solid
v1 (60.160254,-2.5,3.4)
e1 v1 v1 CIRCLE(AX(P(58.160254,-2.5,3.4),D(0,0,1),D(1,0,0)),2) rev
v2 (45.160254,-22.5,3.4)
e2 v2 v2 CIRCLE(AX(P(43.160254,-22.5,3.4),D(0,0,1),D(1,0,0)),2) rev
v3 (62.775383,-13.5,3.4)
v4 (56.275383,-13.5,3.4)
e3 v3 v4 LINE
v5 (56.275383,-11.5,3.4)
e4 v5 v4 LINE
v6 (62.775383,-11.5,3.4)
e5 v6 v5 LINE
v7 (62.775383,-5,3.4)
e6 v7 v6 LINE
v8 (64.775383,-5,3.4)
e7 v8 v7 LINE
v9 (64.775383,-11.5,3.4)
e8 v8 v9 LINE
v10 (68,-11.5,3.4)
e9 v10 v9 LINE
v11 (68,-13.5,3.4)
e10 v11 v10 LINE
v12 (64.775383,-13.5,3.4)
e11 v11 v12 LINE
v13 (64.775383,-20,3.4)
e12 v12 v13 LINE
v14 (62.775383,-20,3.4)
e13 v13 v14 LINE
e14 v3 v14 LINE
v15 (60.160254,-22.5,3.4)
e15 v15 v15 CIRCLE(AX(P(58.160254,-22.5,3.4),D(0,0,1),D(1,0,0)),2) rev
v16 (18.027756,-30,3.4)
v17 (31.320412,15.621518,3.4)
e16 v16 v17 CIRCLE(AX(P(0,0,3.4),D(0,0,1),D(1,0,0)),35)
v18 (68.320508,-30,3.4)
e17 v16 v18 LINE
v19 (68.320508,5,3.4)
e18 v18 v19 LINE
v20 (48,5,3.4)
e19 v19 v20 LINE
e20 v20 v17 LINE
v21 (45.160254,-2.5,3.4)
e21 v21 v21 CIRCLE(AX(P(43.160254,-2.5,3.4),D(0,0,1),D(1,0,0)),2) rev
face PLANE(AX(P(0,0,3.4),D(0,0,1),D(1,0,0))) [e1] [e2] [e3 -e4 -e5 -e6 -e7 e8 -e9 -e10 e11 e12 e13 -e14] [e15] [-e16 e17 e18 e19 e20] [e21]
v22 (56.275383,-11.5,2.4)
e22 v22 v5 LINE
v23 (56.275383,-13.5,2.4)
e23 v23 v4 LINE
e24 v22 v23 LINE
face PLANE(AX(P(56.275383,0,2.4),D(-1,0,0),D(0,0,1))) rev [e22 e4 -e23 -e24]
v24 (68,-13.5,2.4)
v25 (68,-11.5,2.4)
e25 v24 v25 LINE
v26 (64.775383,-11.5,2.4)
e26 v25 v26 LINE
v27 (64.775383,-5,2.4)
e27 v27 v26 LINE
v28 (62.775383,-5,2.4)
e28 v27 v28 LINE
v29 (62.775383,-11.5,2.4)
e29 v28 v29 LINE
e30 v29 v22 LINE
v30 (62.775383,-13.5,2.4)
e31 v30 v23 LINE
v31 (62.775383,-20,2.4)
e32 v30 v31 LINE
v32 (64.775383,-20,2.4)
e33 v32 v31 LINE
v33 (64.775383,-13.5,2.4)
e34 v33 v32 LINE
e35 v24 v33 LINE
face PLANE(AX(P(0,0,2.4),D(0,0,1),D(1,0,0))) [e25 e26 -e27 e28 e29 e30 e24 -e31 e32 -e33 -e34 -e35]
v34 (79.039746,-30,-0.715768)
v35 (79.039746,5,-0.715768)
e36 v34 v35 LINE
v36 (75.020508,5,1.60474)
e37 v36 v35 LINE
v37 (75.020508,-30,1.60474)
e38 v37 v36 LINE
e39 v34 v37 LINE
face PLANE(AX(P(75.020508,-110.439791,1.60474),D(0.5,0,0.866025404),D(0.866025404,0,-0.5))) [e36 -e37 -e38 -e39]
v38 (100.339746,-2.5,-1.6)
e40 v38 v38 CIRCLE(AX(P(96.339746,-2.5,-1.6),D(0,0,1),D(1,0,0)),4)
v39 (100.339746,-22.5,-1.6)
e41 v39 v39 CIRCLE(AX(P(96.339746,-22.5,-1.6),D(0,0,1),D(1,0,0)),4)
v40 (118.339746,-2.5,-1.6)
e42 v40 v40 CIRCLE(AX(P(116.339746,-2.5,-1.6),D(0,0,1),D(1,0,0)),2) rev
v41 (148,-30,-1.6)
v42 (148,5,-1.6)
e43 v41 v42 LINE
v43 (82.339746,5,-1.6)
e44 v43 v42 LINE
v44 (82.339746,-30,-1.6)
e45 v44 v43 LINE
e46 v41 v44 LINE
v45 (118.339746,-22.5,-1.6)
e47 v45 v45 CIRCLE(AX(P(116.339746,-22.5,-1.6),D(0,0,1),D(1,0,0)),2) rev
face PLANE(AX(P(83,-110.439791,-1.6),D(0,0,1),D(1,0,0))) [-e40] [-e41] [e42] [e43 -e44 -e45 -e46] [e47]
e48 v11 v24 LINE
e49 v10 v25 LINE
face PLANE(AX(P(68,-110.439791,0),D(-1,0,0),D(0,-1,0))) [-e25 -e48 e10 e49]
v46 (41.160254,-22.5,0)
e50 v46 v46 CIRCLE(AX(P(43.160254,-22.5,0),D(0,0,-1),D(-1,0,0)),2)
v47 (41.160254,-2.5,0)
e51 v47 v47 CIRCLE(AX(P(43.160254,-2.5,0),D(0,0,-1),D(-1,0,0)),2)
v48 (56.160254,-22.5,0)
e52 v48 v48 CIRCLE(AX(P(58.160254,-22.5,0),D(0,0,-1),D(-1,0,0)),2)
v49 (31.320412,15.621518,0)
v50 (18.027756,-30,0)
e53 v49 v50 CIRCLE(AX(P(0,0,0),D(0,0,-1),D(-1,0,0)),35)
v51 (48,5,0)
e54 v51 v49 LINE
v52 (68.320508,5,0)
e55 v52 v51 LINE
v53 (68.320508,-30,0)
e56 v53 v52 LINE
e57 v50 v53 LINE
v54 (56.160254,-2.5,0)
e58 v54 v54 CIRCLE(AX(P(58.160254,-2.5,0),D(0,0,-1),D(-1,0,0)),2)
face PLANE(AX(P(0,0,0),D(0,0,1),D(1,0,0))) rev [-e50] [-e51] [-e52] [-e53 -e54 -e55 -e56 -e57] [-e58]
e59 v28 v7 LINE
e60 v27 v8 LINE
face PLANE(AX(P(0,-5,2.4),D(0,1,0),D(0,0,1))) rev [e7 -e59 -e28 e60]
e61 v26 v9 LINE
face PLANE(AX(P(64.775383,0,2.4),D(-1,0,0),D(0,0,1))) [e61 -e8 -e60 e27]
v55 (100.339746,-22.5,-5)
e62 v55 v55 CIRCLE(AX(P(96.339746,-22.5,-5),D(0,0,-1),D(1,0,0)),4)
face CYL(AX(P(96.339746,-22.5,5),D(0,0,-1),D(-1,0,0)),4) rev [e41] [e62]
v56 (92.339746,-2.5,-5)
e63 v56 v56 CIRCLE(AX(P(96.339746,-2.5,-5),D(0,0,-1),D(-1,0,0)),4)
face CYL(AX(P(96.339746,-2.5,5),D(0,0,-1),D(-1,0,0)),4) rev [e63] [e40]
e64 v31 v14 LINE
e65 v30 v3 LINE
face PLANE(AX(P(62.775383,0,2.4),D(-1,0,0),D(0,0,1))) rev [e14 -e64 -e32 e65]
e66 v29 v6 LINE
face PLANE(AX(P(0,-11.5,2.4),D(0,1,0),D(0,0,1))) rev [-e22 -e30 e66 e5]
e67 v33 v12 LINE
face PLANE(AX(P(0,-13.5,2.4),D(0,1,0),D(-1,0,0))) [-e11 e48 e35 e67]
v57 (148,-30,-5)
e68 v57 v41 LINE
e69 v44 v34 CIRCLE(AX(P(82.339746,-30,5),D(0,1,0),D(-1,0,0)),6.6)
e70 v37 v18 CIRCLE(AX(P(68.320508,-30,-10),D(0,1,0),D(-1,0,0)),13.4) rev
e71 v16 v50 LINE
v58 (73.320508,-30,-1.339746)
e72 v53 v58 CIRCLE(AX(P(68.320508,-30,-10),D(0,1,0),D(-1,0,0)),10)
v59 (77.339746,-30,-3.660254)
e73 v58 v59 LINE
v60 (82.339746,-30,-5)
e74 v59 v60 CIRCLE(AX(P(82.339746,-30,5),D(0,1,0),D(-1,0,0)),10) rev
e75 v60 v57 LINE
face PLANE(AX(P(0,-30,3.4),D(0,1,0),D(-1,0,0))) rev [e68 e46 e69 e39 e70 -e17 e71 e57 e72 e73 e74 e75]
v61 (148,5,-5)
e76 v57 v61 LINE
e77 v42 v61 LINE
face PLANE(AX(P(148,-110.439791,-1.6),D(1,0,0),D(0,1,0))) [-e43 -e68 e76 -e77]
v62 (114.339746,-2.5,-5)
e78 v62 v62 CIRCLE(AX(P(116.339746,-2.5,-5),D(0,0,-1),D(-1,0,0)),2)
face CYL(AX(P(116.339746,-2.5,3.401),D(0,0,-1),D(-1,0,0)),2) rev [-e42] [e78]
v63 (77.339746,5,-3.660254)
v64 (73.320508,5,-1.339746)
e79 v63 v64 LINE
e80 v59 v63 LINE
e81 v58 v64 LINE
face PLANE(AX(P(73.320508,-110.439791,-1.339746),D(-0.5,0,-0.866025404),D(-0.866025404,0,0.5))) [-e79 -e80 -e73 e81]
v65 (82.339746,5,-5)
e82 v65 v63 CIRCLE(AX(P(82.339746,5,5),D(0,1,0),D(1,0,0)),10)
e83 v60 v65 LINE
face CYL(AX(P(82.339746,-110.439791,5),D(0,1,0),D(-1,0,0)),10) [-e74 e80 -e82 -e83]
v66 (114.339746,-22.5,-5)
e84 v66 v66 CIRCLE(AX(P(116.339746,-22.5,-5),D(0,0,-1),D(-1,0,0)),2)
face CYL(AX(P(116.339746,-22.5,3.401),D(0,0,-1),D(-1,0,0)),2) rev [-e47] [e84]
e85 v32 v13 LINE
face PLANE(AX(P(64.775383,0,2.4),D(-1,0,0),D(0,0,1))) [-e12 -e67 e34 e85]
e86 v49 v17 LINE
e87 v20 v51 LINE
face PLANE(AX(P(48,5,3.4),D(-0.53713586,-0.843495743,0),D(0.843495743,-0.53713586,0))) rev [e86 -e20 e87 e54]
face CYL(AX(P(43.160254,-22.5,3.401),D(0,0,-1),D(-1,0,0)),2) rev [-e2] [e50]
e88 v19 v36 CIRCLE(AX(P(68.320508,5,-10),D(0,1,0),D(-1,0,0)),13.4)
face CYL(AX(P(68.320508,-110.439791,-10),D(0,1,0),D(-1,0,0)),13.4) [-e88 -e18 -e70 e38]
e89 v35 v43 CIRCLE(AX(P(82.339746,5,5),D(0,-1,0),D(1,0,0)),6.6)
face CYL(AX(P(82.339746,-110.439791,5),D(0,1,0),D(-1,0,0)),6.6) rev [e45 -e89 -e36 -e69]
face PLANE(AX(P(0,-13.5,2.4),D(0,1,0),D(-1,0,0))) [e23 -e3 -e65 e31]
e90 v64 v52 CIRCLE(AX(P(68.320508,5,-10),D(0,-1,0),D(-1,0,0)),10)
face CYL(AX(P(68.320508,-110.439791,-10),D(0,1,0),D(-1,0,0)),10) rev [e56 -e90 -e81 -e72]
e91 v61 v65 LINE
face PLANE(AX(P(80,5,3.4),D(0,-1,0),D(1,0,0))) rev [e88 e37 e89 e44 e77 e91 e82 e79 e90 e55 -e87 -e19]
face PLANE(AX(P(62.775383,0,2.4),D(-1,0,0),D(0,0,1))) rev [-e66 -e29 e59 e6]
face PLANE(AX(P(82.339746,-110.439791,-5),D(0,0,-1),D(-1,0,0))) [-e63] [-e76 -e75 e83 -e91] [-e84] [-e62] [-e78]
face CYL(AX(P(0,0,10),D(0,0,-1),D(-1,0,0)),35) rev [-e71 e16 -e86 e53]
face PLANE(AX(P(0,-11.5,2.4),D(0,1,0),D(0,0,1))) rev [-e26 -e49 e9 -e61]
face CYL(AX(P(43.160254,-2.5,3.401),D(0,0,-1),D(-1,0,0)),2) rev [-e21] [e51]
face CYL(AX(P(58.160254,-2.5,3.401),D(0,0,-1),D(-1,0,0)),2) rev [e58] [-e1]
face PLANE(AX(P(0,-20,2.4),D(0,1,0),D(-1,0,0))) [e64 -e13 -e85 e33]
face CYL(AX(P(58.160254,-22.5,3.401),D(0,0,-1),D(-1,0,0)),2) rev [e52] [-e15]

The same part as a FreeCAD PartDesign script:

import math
import FreeCAD as App
import Part
import Sketcher
from FreeCAD import Vector
Q = App.Units.Quantity


def add_polygon(sketch, points):
    """Adds a closed chain of lines whose ends are joined by coincident constraints."""
    first, n = sketch.GeometryCount, len(points)
    for a, b in zip(points, points[1:] + points[:1]):
        sketch.addGeometry(Part.LineSegment(App.Vector(*a, 0), App.Vector(*b, 0)), False)
    for i in range(n):
        sketch.addConstraint(Sketcher.Constraint("Coincident", first + i, 2, first + (i + 1) % n, 1))

doc = App.newDocument("Part")
body = doc.addObject("PartDesign::Body", "Body")

sketch1 = body.newObject("Sketcher::SketchObject", "Sketch")
sketch1.AttachmentSupport = (doc.getObject("XY_Plane"), [""])
sketch1.MapMode = "FlatFace"
sketch1.addGeometry(Part.LineSegment(Vector(0, -30, 0), Vector(80, -30, 0)), False)
sketch1.addGeometry(Part.LineSegment(Vector(80, -30, 0), Vector(80, 5, 0)), False)
sketch1.addGeometry(Part.LineSegment(Vector(80, 5, 0), Vector(48, 5, 0)), False)
sketch1.addGeometry(Part.LineSegment(Vector(48, 5, 0), Vector(16, 25, 0)), False)
sketch1.addGeometry(Part.ArcOfCircle(Part.Circle(Vector(0, 0, 0), Vector(0, 0, 1), 30), math.radians(58), math.radians(270)), False)
sketch1.addConstraint(Sketcher.Constraint("Coincident", 0, 2, 1, 1))
sketch1.addConstraint(Sketcher.Constraint("Coincident", 1, 2, 2, 1))
sketch1.addConstraint(Sketcher.Constraint("Coincident", 2, 2, 3, 1))
sketch1.addConstraint(Sketcher.Constraint("Tangent", 3, 2, 4, 1))
sketch1.addConstraint(Sketcher.Constraint("Tangent", 4, 2, 0, 1))
sketch1.addConstraint(Sketcher.Constraint("Horizontal", 0))
sketch1.addConstraint(Sketcher.Constraint("Vertical", 1))
sketch1.addConstraint(Sketcher.Constraint("Horizontal", 2))
sketch1.addConstraint(Sketcher.Constraint("Coincident", 4, 3, -1, 1))
sketch1.addConstraint(Sketcher.Constraint("Radius", 4, 30.0))
sketch1.addConstraint(Sketcher.Constraint("DistanceX", 0, 1, 0, 2, 80.0))
sketch1.addConstraint(Sketcher.Constraint("DistanceX", 2, 2, 2, 1, 32.0))
sketch1.addConstraint(Sketcher.Constraint("DistanceY", 1, 1, 1, 2, 35.0))
pad1 = body.newObject("PartDesign::Pad", "Pad")
pad1.Profile = sketch1
pad1.Length = 3.4

sketch2 = body.newObject("Sketcher::SketchObject", "Sketch001")
sketch2.AttachmentSupport = (doc.getObject("XY_Plane"), [""])
sketch2.MapMode = "FlatFace"
sketch2.AttachmentOffset = App.Placement(Vector(0, 0, 3.4), App.Rotation())
sketch2.addGeometry(Part.Circle(Vector(0, 0, 0), Vector(0, 0, 1), 5), False)
sketch2.addConstraint(Sketcher.Constraint("Coincident", 0, 3, -1, 1))
sketch2.addConstraint(Sketcher.Constraint("Diameter", 0, 10.0))
pocket1 = body.newObject("PartDesign::Pocket", "Pocket")
pocket1.Profile = sketch2
pocket1.Length = 6

sketch3 = body.newObject("Sketcher::SketchObject", "Sketch002")
sketch3.AttachmentSupport = (doc.getObject("XY_Plane"), [""])
sketch3.MapMode = "FlatFace"
sketch3.AttachmentOffset = App.Placement(Vector(0, 0, 3.4), App.Rotation())
sketch3.addGeometry(Part.ArcOfCircle(Part.Circle(Vector(0, 0, 0), Vector(0, 0, 1), 10), math.radians(90), math.radians(210)), False)
sketch3.addGeometry(Part.ArcOfCircle(Part.Circle(Vector(0, 14, 0), Vector(0, 0, 1), 4), math.radians(-90), math.radians(90)), False)
sketch3.addGeometry(Part.ArcOfCircle(Part.Circle(Vector(0, 0, 0), Vector(0, 0, 1), 18), math.radians(90), math.radians(210)), False)
sketch3.addGeometry(Part.ArcOfCircle(Part.Circle(Vector(-12.1, -7, 0), Vector(0, 0, 1), 4), math.radians(-150), math.radians(30)), False)
sketch3.addConstraint(Sketcher.Constraint("Tangent", 0, 1, 1, 1))
sketch3.addConstraint(Sketcher.Constraint("Tangent", 1, 2, 2, 1))
sketch3.addConstraint(Sketcher.Constraint("Tangent", 2, 2, 3, 1))
sketch3.addConstraint(Sketcher.Constraint("Tangent", 3, 2, 0, 2))
sketch3.addConstraint(Sketcher.Constraint("Coincident", 0, 3, -1, 1))
sketch3.addConstraint(Sketcher.Constraint("Coincident", 2, 3, -1, 1))
sketch3.addConstraint(Sketcher.Constraint("PointOnObject", 1, 3, -2))
sketch3.addConstraint(Sketcher.Constraint("Radius", 0, 10.0))
sketch3.addConstraint(Sketcher.Constraint("Radius", 1, 4.0))
sketch3.addConstraint(Sketcher.Constraint("DistanceY", 3, 3, -1, 1, 7.0))
pocket2 = body.newObject("PartDesign::Pocket", "Pocket001")
pocket2.Profile = sketch3
pocket2.Length = 10

sketch4 = body.newObject("Sketcher::SketchObject", "Sketch003")
sketch4.AttachmentSupport = (doc.getObject("XY_Plane"), [""])
sketch4.MapMode = "FlatFace"
sketch4.addGeometry(Part.Circle(Vector(0, 0, 0), Vector(0, 0, 1), 35), False)
sketch4.addConstraint(Sketcher.Constraint("Coincident", 0, 3, -1, 1))
sketch4.addConstraint(Sketcher.Constraint("Diameter", 0, 70.0))
pocket3 = body.newObject("PartDesign::Pocket", "Pocket002")
pocket3.Profile = sketch4
pocket3.Length = 10
pocket3.Reversed = True

sketch5 = body.newObject("Sketcher::SketchObject", "Sketch004")
sketch5.AttachmentSupport = (doc.getObject("XY_Plane"), [""])
sketch5.MapMode = "FlatFace"
sketch5.AttachmentOffset = App.Placement(Vector(0, 0, 3.4), App.Rotation())
add_polygon(sketch5, [(62.8, -13.5), (62.8, -20), (64.8, -20), (64.8, -13.5), (71.3, -13.5), (71.3, -11.5), (64.8, -11.5), (64.8, -5), (62.8, -5), (62.8, -11.5), (56.3, -11.5), (56.3, -13.5)])
sketch5.addConstraint(Sketcher.Constraint("Vertical", 0))
sketch5.addConstraint(Sketcher.Constraint("Horizontal", 1))
sketch5.addConstraint(Sketcher.Constraint("Vertical", 2))
sketch5.addConstraint(Sketcher.Constraint("Horizontal", 3))
sketch5.addConstraint(Sketcher.Constraint("Vertical", 4))
sketch5.addConstraint(Sketcher.Constraint("Horizontal", 5))
sketch5.addConstraint(Sketcher.Constraint("Vertical", 6))
sketch5.addConstraint(Sketcher.Constraint("Horizontal", 7))
sketch5.addConstraint(Sketcher.Constraint("Vertical", 8))
sketch5.addConstraint(Sketcher.Constraint("Horizontal", 9))
sketch5.addConstraint(Sketcher.Constraint("Vertical", 10))
sketch5.addConstraint(Sketcher.Constraint("Horizontal", 11))
sketch5.addConstraint(Sketcher.Constraint("Horizontal", 5, 2, 8, 2))
sketch5.addConstraint(Sketcher.Constraint("Horizontal", 3, 2, 10, 2))
sketch5.addConstraint(Sketcher.Constraint("Vertical", 2, 2, 5, 2))
sketch5.addConstraint(Sketcher.Constraint("Vertical", 0, 2, 7, 2))
sketch5.addConstraint(Sketcher.Constraint("Equal", 5, 9))
sketch5.addConstraint(Sketcher.Constraint("Equal", 11, 0))
sketch5.addConstraint(Sketcher.Constraint("Equal", 7, 4))
sketch5.addConstraint(Sketcher.Constraint("Equal", 2, 6))
sketch5.addConstraint(Sketcher.Constraint("DistanceX", 1, 1, 1, 2, 2.0))
sketch5.addConstraint(Sketcher.Constraint("DistanceX", 3, 1, 3, 2, 6.5))
sketch5.addConstraint(Sketcher.Constraint("DistanceY", 0, 2, -1, 1, 20.0))
sketch5.addConstraint(Sketcher.Constraint("DistanceX", -1, 1, 0, 2, 62.775383))
pocket4 = body.newObject("PartDesign::Pocket", "Pocket003")
pocket4.Profile = sketch5
pocket4.Length = 1

sketch6 = body.newObject("Sketcher::SketchObject", "Sketch005")
sketch6.AttachmentSupport = (doc.getObject("XY_Plane"), [""])
sketch6.MapMode = "FlatFace"
add_polygon(sketch6, [(80, 5), (80, -30), (68, -30), (68, 5)])
sketch6.addConstraint(Sketcher.Constraint("Vertical", 0))
sketch6.addConstraint(Sketcher.Constraint("Horizontal", 1))
sketch6.addConstraint(Sketcher.Constraint("Vertical", 2))
sketch6.addConstraint(Sketcher.Constraint("Horizontal", 3))
sketch6.addConstraint(Sketcher.Constraint("DistanceX", 1, 2, 1, 1, 12.0))
sketch6.addConstraint(Sketcher.Constraint("DistanceY", 0, 2, 0, 1, 35.0))
sketch6.addConstraint(Sketcher.Constraint("DistanceX", -1, 1, 0, 2, 80.0))
sketch6.addConstraint(Sketcher.Constraint("DistanceY", 0, 2, -1, 1, 30.0))
pocket5 = body.newObject("PartDesign::Pocket", "Pocket004")
pocket5.Profile = sketch6
pocket5.Type = "UpToFirst"
pocket5.Reversed = True

sketch7 = body.newObject("Sketcher::SketchObject", "Sketch006")
sketch7.AttachmentSupport = (doc.getObject("XZ_Plane"), [""])
sketch7.MapMode = "FlatFace"
sketch7.AttachmentOffset = App.Placement(Vector(0, 0, -5), App.Rotation())
sketch7.addGeometry(Part.LineSegment(Vector(68.32, 0, 0), Vector(68, 0, 0)), False)
sketch7.addGeometry(Part.LineSegment(Vector(68, 0, 0), Vector(68, 3.4, 0)), False)
sketch7.addGeometry(Part.LineSegment(Vector(68, 3.4, 0), Vector(68.32, 3.4, 0)), False)
sketch7.addGeometry(Part.ArcOfCircle(Part.Circle(Vector(68.32, -10, 0), Vector(0, 0, 1), 13.4), math.radians(60), math.radians(90)), False)
sketch7.addGeometry(Part.LineSegment(Vector(75.02, 1.6, 0), Vector(79.04, -0.72, 0)), False)
sketch7.addGeometry(Part.ArcOfCircle(Part.Circle(Vector(82.34, 5, 0), Vector(0, 0, 1), 6.6), math.radians(-120), math.radians(-90)), False)
sketch7.addGeometry(Part.LineSegment(Vector(82.34, -1.6, 0), Vector(148, -1.6, 0)), False)
sketch7.addGeometry(Part.LineSegment(Vector(148, -1.6, 0), Vector(148, -5, 0)), False)
sketch7.addGeometry(Part.LineSegment(Vector(148, -5, 0), Vector(82.34, -5, 0)), False)
sketch7.addGeometry(Part.ArcOfCircle(Part.Circle(Vector(82.34, 5, 0), Vector(0, 0, 1), 10), math.radians(-120), math.radians(-90)), False)
sketch7.addGeometry(Part.LineSegment(Vector(77.34, -3.66, 0), Vector(73.32, -1.34, 0)), False)
sketch7.addGeometry(Part.ArcOfCircle(Part.Circle(Vector(68.32, -10, 0), Vector(0, 0, 1), 10), math.radians(60), math.radians(90)), False)
sketch7.addConstraint(Sketcher.Constraint("Coincident", 0, 2, 1, 1))
sketch7.addConstraint(Sketcher.Constraint("Coincident", 1, 2, 2, 1))
sketch7.addConstraint(Sketcher.Constraint("Tangent", 2, 2, 3, 2))
sketch7.addConstraint(Sketcher.Constraint("Tangent", 3, 1, 4, 1))
sketch7.addConstraint(Sketcher.Constraint("Tangent", 4, 2, 5, 1))
sketch7.addConstraint(Sketcher.Constraint("Tangent", 5, 2, 6, 1))
sketch7.addConstraint(Sketcher.Constraint("Coincident", 6, 2, 7, 1))
sketch7.addConstraint(Sketcher.Constraint("Coincident", 7, 2, 8, 1))
sketch7.addConstraint(Sketcher.Constraint("Tangent", 8, 2, 9, 2))
sketch7.addConstraint(Sketcher.Constraint("Tangent", 9, 1, 10, 1))
sketch7.addConstraint(Sketcher.Constraint("Tangent", 10, 2, 11, 1))
sketch7.addConstraint(Sketcher.Constraint("Tangent", 11, 2, 0, 1))
sketch7.addConstraint(Sketcher.Constraint("Horizontal", 0))
sketch7.addConstraint(Sketcher.Constraint("Vertical", 1))
sketch7.addConstraint(Sketcher.Constraint("Horizontal", 2))
sketch7.addConstraint(Sketcher.Constraint("Horizontal", 6))
sketch7.addConstraint(Sketcher.Constraint("Vertical", 7))
sketch7.addConstraint(Sketcher.Constraint("Horizontal", 8))
sketch7.addConstraint(Sketcher.Constraint("Coincident", 9, 3, 5, 3))
sketch7.addConstraint(Sketcher.Constraint("Coincident", 11, 3, 3, 3))
sketch7.addConstraint(Sketcher.Constraint("Equal", 9, 11))
sketch7.addConstraint(Sketcher.Constraint("PointOnObject", 0, 2, -1))
sketch7.addConstraint(Sketcher.Constraint("Parallel", 4, 10))
sketch7.addConstraint(Sketcher.Constraint("Radius", 9, 10.0))
sketch7.addConstraint(Sketcher.Constraint("Radius", 3, 13.4))
sketch7.addConstraint(Sketcher.Constraint("Angle", 4, Q("-30 deg")))
sketch7.addConstraint(Sketcher.Constraint("DistanceY", -1, 1, 5, 3, 5.0))
sketch7.addConstraint(Sketcher.Constraint("DistanceX", -1, 1, 0, 2, 68.0))
sketch7.addConstraint(Sketcher.Constraint("DistanceX", -1, 1, 6, 2, 148.0))
sketch7.addConstraint(Sketcher.Constraint("DistanceX", 0, 2, 0, 1, 0.320508))
pad2 = body.newObject("PartDesign::Pad", "Pad001")
pad2.Profile = sketch7
pad2.Length = 35

sketch8 = body.newObject("Sketcher::SketchObject", "Sketch007")
sketch8.AttachmentSupport = (doc.getObject("XY_Plane"), [""])
sketch8.MapMode = "FlatFace"
sketch8.AttachmentOffset = App.Placement(Vector(0, 0, -5), App.Rotation())
sketch8.addGeometry(Part.Circle(Vector(96.3, -2.5, 0), Vector(0, 0, 1), 4), False)
sketch8.addGeometry(Part.Circle(Vector(96.3, -22.5, 0), Vector(0, 0, 1), 4), False)
sketch8.addConstraint(Sketcher.Constraint("Equal", 0, 1))
sketch8.addConstraint(Sketcher.Constraint("Vertical", 0, 3, 1, 3))
sketch8.addConstraint(Sketcher.Constraint("Diameter", 0, 8.0))
sketch8.addConstraint(Sketcher.Constraint("DistanceY", 1, 3, 0, 3, 20.0))
sketch8.addConstraint(Sketcher.Constraint("DistanceY", 0, 3, -1, 1, 2.5))
sketch8.addConstraint(Sketcher.Constraint("DistanceX", -1, 1, 0, 3, 96.339746))
pocket6 = body.newObject("PartDesign::Pocket", "Pocket005")
pocket6.Profile = sketch8
pocket6.Length = 10
pocket6.Reversed = True

sketch9 = body.newObject("Sketcher::SketchObject", "Sketch008")
sketch9.AttachmentSupport = (doc.getObject("XY_Plane"), [""])
sketch9.MapMode = "FlatFace"
sketch9.addGeometry(Part.Circle(Vector(58.2, -22.5, 0), Vector(0, 0, 1), 2), False)
sketch9.addConstraint(Sketcher.Constraint("Diameter", 0, 4.0))
sketch9.addConstraint(Sketcher.Constraint("DistanceY", 0, 3, -1, 1, 22.5))
sketch9.addConstraint(Sketcher.Constraint("DistanceX", -1, 1, 0, 3, 58.160254))
pocket7 = body.newObject("PartDesign::Pocket", "Pocket006")
pocket7.Profile = sketch9
pocket7.Type = "UpToFirst"
pocket7.Reversed = True

sketch10 = body.newObject("Sketcher::SketchObject", "Sketch009")
sketch10.AttachmentSupport = (doc.getObject("XY_Plane"), [""])
sketch10.MapMode = "FlatFace"
sketch10.addGeometry(Part.Circle(Vector(58.2, -2.5, 0), Vector(0, 0, 1), 2), False)
sketch10.addConstraint(Sketcher.Constraint("Diameter", 0, 4.0))
sketch10.addConstraint(Sketcher.Constraint("DistanceY", 0, 3, -1, 1, 2.5))
sketch10.addConstraint(Sketcher.Constraint("DistanceX", -1, 1, 0, 3, 58.160254))
pocket8 = body.newObject("PartDesign::Pocket", "Pocket007")
pocket8.Profile = sketch10
pocket8.Type = "UpToFirst"
pocket8.Reversed = True

sketch11 = body.newObject("Sketcher::SketchObject", "Sketch010")
sketch11.AttachmentSupport = (doc.getObject("XY_Plane"), [""])
sketch11.MapMode = "FlatFace"
sketch11.addGeometry(Part.Circle(Vector(43.2, -22.5, 0), Vector(0, 0, 1), 2), False)
sketch11.addConstraint(Sketcher.Constraint("Diameter", 0, 4.0))
sketch11.addConstraint(Sketcher.Constraint("DistanceY", 0, 3, -1, 1, 22.5))
sketch11.addConstraint(Sketcher.Constraint("DistanceX", -1, 1, 0, 3, 43.160254))
pocket9 = body.newObject("PartDesign::Pocket", "Pocket008")
pocket9.Profile = sketch11
pocket9.Type = "UpToFirst"
pocket9.Reversed = True

sketch12 = body.newObject("Sketcher::SketchObject", "Sketch011")
sketch12.AttachmentSupport = (doc.getObject("XY_Plane"), [""])
sketch12.MapMode = "FlatFace"
sketch12.addGeometry(Part.Circle(Vector(43.2, -2.5, 0), Vector(0, 0, 1), 2), False)
sketch12.addConstraint(Sketcher.Constraint("Diameter", 0, 4.0))
sketch12.addConstraint(Sketcher.Constraint("DistanceY", 0, 3, -1, 1, 2.5))
sketch12.addConstraint(Sketcher.Constraint("DistanceX", -1, 1, 0, 3, 43.160254))
pocket10 = body.newObject("PartDesign::Pocket", "Pocket009")
pocket10.Profile = sketch12
pocket10.Type = "UpToFirst"
pocket10.Reversed = True

sketch13 = body.newObject("Sketcher::SketchObject", "Sketch012")
sketch13.AttachmentSupport = (doc.getObject("XY_Plane"), [""])
sketch13.MapMode = "FlatFace"
sketch13.AttachmentOffset = App.Placement(Vector(0, 0, -5), App.Rotation())
sketch13.addGeometry(Part.Circle(Vector(116.3, -22.5, 0), Vector(0, 0, 1), 2), False)
sketch13.addConstraint(Sketcher.Constraint("Diameter", 0, 4.0))
sketch13.addConstraint(Sketcher.Constraint("DistanceY", 0, 3, -1, 1, 22.5))
sketch13.addConstraint(Sketcher.Constraint("DistanceX", -1, 1, 0, 3, 116.339746))
pocket11 = body.newObject("PartDesign::Pocket", "Pocket010")
pocket11.Profile = sketch13
pocket11.Type = "UpToFirst"
pocket11.Reversed = True

sketch14 = body.newObject("Sketcher::SketchObject", "Sketch013")
sketch14.AttachmentSupport = (doc.getObject("XY_Plane"), [""])
sketch14.MapMode = "FlatFace"
sketch14.AttachmentOffset = App.Placement(Vector(0, 0, -5), App.Rotation())
sketch14.addGeometry(Part.Circle(Vector(116.3, -2.5, 0), Vector(0, 0, 1), 2), False)
sketch14.addConstraint(Sketcher.Constraint("Diameter", 0, 4.0))
sketch14.addConstraint(Sketcher.Constraint("DistanceY", 0, 3, -1, 1, 2.5))
sketch14.addConstraint(Sketcher.Constraint("DistanceX", -1, 1, 0, 3, 116.339746))
pocket12 = body.newObject("PartDesign::Pocket", "Pocket011")
pocket12.Profile = sketch14
pocket12.Type = "UpToFirst"
pocket12.Reversed = True

doc.recompute()
